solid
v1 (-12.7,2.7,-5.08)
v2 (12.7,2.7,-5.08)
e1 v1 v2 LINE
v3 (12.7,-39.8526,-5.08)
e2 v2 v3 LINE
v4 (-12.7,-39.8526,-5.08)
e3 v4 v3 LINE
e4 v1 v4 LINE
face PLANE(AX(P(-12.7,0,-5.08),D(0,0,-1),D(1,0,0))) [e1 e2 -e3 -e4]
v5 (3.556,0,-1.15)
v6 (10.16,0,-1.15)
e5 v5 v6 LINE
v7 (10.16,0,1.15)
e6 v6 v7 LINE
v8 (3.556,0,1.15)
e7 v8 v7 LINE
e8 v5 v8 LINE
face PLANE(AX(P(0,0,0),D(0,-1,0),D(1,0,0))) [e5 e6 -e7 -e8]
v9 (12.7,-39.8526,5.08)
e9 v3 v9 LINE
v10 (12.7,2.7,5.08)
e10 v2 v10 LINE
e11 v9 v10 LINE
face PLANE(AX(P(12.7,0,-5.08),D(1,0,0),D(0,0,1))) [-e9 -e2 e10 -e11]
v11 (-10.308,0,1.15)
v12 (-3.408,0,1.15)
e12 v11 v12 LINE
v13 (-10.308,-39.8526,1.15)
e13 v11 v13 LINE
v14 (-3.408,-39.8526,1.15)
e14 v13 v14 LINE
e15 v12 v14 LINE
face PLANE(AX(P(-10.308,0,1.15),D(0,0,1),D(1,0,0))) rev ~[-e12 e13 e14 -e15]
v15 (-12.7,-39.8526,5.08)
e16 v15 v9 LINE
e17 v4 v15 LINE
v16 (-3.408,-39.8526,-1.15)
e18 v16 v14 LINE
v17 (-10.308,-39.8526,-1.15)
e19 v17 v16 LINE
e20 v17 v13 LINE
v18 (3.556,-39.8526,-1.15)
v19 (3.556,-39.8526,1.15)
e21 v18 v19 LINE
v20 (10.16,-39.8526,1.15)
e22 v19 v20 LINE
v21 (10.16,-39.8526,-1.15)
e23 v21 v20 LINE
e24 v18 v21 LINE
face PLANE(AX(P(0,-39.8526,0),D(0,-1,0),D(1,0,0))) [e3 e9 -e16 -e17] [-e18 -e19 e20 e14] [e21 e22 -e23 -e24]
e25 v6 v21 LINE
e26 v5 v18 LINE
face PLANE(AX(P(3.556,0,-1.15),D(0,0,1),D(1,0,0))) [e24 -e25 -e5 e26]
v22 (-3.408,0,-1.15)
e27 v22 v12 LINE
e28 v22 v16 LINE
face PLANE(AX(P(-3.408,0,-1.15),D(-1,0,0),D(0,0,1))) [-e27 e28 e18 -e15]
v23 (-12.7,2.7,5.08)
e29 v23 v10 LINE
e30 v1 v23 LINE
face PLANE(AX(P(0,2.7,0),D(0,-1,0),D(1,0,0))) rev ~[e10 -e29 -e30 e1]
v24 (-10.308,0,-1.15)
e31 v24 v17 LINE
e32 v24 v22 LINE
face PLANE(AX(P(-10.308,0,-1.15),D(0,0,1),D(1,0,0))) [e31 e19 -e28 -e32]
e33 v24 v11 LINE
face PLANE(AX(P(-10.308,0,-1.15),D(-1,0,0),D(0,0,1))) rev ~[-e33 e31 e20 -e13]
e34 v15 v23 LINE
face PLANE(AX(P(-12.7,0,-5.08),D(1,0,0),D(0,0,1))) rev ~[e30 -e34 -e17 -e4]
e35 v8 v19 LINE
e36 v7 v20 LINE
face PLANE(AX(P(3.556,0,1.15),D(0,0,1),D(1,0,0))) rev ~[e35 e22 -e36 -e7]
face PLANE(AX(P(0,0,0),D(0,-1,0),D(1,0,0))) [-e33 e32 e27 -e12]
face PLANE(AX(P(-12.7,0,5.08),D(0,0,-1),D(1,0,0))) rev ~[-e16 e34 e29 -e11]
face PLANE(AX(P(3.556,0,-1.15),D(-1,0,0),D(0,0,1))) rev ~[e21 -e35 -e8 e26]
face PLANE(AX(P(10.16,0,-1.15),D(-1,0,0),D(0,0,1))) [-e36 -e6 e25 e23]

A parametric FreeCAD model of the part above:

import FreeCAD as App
import Part
import Sketcher
Q = App.Units.Quantity

doc = App.newDocument("Part")
body = doc.addObject("PartDesign::Body", "Body")

sketch1 = doc.addObject("Sketcher::SketchObject", "Sketch")
body.addObject(sketch1)
sketch1.AttachmentSupport = (doc.XZ_Plane, [""])
sketch1.MapMode = "FlatFace"
sketch1.addGeometry([
    Part.LineSegment(App.Vector(-12.7, 5.08, 0), App.Vector(-12.7, -5.08, 0)),
    Part.LineSegment(App.Vector(-12.7, -5.08, 0), App.Vector(12.7, -5.08, 0)),
    Part.LineSegment(App.Vector(12.7, -5.08, 0), App.Vector(12.7, 5.08, 0)),
    Part.LineSegment(App.Vector(12.7, 5.08, 0), App.Vector(-12.7, 5.08, 0)),
    Part.LineSegment(App.Vector(-3.408, -1.15, 0), App.Vector(-10.308, -1.15, 0)),
    Part.LineSegment(App.Vector(-10.308, -1.15, 0), App.Vector(-10.308, 1.15, 0)),
    Part.LineSegment(App.Vector(-10.308, 1.15, 0), App.Vector(-3.408, 1.15, 0)),
    Part.LineSegment(App.Vector(-3.408, 1.15, 0), App.Vector(-3.408, -1.15, 0)),
    Part.LineSegment(App.Vector(10.16, -1.15, 0), App.Vector(3.556, -1.15, 0)),
    Part.LineSegment(App.Vector(3.556, -1.15, 0), App.Vector(3.556, 1.15, 0)),
    Part.LineSegment(App.Vector(3.556, 1.15, 0), App.Vector(10.16, 1.15, 0)),
    Part.LineSegment(App.Vector(10.16, 1.15, 0), App.Vector(10.16, -1.15, 0)),
], False)
sketch1.addConstraint([
    Sketcher.Constraint("Coincident", 0, 2, 1, 1),
    Sketcher.Constraint("Coincident", 1, 2, 2, 1),
    Sketcher.Constraint("Coincident", 2, 2, 3, 1),
    Sketcher.Constraint("Coincident", 3, 2, 0, 1),
    Sketcher.Constraint("Coincident", 4, 2, 5, 1),
    Sketcher.Constraint("Coincident", 5, 2, 6, 1),
    Sketcher.Constraint("Coincident", 6, 2, 7, 1),
    Sketcher.Constraint("Coincident", 7, 2, 4, 1),
    Sketcher.Constraint("Coincident", 8, 2, 9, 1),
    Sketcher.Constraint("Coincident", 9, 2, 10, 1),
    Sketcher.Constraint("Coincident", 10, 2, 11, 1),
    Sketcher.Constraint("Coincident", 11, 2, 8, 1),
    Sketcher.Constraint("Vertical", 0),
    Sketcher.Constraint("Horizontal", 1),
    Sketcher.Constraint("Vertical", 2),
    Sketcher.Constraint("Horizontal", 3),
    Sketcher.Constraint("Horizontal", 4),
    Sketcher.Constraint("Vertical", 5),
    Sketcher.Constraint("Horizontal", 6),
    Sketcher.Constraint("Vertical", 7),
    Sketcher.Constraint("Horizontal", 8),
    Sketcher.Constraint("Vertical", 9),
    Sketcher.Constraint("Horizontal", 10),
    Sketcher.Constraint("Vertical", 11),
    Sketcher.Constraint("Symmetric", 0, 2, 2, 2, -1, 1),
    Sketcher.Constraint("Horizontal", 7, 2, 8, 2),
    Sketcher.Constraint("Horizontal", 6, 2, 9, 2),
    Sketcher.Constraint("DistanceX", 1, 1, 1, 2, Q("1 in")),
    Sketcher.Constraint("DistanceY", 0, 2, 0, 1, Q("0.4 in")),
    Sketcher.Constraint("DistanceX", 8, 2, 8, 1, Q("0.26 in")),
    Sketcher.Constraint("DistanceX", -1, 1, 10, 2, Q("0.4 in")),
    Sketcher.Constraint("DistanceX", 4, 2, 4, 1, 6.9),
    Sketcher.Constraint("DistanceY", 5, 1, 5, 2, 2.3),
    Sketcher.Constraint("DistanceX", 4, 2, -1, 1, 10.308),
    Sketcher.Constraint("DistanceY", 4, 2, -1, 1, 1.15),
])
pad1 = doc.addObject("PartDesign::Pad", "Pad")
body.addObject(pad1)
pad1.Profile = sketch1
pad1.Length = Q("1.569 in")

sketch2 = doc.addObject("Sketcher::SketchObject", "Sketch001")
body.addObject(sketch2)
sketch2.AttachmentSupport = (doc.XZ_Plane, [""])
sketch2.MapMode = "FlatFace"
sketch2.addGeometry([
    Part.LineSegment(App.Vector(-12.7, 5.08, 0), App.Vector(-12.7, -5.08, 0)),
    Part.LineSegment(App.Vector(-12.7, -5.08, 0), App.Vector(12.7, -5.08, 0)),
    Part.LineSegment(App.Vector(12.7, -5.08, 0), App.Vector(12.7, 5.08, 0)),
    Part.LineSegment(App.Vector(12.7, 5.08, 0), App.Vector(-12.7, 5.08, 0)),
], False)
sketch2.addConstraint([
    Sketcher.Constraint("Coincident", 0, 2, 1, 1),
    Sketcher.Constraint("Coincident", 1, 2, 2, 1),
    Sketcher.Constraint("Coincident", 2, 2, 3, 1),
    Sketcher.Constraint("Coincident", 3, 2, 0, 1),
    Sketcher.Constraint("Vertical", 0),
    Sketcher.Constraint("Horizontal", 1),
    Sketcher.Constraint("Vertical", 2),
    Sketcher.Constraint("Horizontal", 3),
    Sketcher.Constraint("Symmetric", 0, 2, 2, 2, -1, 1),
    Sketcher.Constraint("DistanceX", 1, 1, 1, 2, Q("1 in")),
    Sketcher.Constraint("DistanceY", 0, 2, 0, 1, Q("0.4 in")),
])
pad2 = doc.addObject("PartDesign::Pad", "Pad001")
body.addObject(pad2)
pad2.Profile = sketch2
pad2.Length = 2.7
pad2.Reversed = True

doc.recompute()
